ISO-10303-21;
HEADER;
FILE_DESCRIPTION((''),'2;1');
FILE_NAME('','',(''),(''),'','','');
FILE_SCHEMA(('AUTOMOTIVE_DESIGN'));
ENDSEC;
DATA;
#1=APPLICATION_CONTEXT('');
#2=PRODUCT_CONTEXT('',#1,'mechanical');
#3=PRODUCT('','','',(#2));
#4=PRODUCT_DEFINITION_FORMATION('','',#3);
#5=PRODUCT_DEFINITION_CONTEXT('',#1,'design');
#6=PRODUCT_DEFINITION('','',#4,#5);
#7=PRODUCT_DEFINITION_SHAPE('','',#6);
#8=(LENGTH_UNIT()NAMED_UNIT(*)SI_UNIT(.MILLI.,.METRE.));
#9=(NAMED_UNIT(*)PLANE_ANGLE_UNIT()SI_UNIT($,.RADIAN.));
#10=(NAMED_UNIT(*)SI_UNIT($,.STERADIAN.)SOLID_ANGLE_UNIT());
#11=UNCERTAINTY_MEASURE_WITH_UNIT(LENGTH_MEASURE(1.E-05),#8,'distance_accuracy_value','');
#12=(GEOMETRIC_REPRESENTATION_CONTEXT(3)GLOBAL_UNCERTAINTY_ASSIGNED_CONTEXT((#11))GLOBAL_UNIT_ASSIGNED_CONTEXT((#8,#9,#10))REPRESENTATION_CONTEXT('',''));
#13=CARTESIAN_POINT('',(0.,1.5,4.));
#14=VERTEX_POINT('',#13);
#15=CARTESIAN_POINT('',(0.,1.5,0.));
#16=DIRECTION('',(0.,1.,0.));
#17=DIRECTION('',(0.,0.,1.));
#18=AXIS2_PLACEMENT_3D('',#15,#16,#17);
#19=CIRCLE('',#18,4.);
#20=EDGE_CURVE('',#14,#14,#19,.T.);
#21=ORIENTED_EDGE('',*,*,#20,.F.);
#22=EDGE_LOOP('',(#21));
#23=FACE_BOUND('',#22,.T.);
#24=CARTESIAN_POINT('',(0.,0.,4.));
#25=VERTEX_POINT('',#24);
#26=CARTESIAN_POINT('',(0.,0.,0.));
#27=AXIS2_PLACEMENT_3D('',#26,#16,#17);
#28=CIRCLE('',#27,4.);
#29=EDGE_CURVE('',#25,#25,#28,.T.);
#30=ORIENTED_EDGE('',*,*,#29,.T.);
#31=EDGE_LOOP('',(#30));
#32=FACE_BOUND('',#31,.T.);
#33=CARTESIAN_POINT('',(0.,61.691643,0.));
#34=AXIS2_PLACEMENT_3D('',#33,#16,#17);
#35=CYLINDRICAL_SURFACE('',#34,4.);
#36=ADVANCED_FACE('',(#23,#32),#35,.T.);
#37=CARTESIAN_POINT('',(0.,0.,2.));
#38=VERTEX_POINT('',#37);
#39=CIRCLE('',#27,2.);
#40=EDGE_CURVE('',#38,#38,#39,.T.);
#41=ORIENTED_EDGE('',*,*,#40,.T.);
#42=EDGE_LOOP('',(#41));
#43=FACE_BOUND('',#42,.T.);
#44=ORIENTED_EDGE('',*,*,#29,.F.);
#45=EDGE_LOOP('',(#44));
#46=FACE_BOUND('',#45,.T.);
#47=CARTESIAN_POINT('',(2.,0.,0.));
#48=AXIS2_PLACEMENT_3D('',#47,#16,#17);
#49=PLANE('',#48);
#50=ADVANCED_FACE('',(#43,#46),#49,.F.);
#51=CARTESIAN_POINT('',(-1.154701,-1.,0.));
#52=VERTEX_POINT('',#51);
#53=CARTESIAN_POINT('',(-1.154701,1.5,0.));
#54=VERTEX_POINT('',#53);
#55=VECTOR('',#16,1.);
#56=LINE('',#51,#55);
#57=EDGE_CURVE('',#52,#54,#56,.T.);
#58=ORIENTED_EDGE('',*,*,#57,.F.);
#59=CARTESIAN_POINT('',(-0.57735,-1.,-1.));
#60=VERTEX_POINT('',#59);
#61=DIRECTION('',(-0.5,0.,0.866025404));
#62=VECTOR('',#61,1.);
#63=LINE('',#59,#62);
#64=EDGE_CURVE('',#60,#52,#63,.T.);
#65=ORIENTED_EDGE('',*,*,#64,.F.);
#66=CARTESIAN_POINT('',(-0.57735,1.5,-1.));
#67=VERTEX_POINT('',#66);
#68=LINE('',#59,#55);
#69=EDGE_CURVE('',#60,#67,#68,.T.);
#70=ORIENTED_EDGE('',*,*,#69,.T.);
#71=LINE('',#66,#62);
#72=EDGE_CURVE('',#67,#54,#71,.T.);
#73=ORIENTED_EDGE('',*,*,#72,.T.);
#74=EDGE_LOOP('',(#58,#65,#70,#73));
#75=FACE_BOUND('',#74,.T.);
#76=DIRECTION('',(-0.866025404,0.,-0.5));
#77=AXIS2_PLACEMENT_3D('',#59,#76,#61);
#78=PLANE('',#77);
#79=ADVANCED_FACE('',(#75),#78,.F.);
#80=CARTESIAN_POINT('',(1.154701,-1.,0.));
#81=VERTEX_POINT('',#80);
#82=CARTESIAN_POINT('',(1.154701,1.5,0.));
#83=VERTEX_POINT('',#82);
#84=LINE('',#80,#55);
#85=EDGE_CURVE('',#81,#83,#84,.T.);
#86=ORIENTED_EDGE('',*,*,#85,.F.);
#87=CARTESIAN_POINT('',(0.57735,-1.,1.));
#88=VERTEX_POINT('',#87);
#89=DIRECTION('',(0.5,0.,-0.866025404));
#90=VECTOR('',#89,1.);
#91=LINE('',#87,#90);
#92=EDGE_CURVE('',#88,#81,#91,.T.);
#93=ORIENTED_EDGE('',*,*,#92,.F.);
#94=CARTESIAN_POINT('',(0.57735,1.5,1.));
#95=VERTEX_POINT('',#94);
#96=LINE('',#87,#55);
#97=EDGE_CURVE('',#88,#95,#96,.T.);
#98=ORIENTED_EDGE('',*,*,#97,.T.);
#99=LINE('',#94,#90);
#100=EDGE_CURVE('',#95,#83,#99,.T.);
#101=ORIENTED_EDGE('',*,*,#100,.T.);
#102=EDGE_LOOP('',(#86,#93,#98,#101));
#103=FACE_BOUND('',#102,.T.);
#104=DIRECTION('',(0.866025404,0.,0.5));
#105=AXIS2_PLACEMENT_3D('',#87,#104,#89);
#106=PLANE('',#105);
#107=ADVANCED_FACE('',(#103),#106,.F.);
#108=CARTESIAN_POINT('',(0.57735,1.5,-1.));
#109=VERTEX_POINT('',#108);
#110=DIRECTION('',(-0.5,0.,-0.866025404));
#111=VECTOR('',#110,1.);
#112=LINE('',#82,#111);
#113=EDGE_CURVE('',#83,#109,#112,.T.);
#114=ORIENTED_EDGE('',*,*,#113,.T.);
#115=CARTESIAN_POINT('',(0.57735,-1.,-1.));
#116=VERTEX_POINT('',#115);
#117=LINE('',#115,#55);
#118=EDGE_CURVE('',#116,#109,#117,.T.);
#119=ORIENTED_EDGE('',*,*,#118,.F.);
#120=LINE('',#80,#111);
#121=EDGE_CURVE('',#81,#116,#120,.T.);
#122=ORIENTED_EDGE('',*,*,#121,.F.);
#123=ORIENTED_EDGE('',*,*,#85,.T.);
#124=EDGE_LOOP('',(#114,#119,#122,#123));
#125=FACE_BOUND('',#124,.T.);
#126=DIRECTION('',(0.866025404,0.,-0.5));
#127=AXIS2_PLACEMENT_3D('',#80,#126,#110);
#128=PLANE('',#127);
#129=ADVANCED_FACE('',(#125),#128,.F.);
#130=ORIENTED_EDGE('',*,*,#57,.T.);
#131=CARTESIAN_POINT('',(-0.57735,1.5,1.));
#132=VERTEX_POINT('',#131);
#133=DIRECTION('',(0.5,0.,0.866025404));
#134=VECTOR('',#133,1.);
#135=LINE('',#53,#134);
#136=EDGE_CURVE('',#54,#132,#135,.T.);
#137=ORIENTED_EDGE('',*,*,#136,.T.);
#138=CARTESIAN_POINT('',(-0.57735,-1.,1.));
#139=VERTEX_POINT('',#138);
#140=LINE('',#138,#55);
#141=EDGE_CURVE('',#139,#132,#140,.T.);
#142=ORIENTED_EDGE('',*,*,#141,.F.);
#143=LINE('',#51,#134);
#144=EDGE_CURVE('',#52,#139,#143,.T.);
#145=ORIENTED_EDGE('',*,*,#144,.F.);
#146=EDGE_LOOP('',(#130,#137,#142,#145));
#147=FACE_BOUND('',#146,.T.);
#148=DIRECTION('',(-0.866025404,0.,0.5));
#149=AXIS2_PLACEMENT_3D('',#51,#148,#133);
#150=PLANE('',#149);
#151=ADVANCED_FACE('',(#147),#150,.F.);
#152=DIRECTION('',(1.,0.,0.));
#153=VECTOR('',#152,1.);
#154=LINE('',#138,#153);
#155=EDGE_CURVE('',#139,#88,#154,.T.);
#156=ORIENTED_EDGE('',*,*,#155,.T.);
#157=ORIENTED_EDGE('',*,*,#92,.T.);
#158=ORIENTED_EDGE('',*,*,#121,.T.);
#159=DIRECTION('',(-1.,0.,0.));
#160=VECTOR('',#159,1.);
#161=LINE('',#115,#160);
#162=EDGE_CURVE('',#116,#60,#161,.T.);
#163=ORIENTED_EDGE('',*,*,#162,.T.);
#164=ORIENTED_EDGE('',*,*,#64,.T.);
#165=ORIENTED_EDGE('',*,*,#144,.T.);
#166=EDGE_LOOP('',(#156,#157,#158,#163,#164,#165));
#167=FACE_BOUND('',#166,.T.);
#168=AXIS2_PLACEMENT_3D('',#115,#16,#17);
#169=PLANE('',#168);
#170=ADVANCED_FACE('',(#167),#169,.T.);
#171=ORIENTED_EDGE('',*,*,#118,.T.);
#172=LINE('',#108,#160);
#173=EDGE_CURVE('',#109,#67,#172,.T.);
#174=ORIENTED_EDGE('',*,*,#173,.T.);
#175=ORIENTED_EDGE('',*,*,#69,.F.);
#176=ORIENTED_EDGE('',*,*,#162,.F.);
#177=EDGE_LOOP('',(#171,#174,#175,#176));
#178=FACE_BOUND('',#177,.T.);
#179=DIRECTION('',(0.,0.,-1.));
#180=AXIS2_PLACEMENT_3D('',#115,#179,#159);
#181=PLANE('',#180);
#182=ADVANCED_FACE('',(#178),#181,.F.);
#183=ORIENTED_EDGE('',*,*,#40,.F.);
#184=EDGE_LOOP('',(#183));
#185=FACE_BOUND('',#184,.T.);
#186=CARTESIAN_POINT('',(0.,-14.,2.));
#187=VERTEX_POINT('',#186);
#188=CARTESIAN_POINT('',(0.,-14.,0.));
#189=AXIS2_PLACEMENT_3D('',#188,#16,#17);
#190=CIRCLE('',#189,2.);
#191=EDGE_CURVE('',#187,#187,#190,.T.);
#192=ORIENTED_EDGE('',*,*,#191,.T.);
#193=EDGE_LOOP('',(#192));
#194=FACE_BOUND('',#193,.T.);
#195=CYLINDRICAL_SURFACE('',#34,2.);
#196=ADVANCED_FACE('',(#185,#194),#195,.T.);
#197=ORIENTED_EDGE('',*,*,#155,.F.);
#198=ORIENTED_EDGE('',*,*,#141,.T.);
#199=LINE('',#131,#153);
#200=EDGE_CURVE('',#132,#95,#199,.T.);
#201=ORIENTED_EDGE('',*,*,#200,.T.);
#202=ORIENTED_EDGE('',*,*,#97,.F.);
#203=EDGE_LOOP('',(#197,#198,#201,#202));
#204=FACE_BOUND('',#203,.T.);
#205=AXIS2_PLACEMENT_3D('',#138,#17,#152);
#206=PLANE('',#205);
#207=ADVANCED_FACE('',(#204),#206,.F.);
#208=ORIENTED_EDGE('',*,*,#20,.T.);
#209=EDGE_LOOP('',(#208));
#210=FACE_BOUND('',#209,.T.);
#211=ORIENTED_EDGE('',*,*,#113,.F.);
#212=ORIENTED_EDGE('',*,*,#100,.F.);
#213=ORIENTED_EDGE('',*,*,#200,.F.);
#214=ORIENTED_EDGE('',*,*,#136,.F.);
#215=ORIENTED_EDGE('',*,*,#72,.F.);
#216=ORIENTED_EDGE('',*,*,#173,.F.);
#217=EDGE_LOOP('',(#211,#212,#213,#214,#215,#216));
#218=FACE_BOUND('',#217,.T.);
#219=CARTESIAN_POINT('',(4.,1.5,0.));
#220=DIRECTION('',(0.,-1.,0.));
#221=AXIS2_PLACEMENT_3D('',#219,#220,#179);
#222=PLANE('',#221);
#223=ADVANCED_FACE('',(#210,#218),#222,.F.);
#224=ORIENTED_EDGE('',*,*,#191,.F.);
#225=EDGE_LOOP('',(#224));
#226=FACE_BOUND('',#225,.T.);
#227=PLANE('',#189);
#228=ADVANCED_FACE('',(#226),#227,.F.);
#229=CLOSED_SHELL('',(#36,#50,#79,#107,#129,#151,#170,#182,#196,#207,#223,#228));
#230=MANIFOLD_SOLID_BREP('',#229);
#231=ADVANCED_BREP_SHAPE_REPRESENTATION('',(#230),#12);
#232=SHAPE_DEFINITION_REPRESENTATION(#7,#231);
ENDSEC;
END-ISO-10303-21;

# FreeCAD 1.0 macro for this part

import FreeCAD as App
import Part
import Sketcher
from FreeCAD import Vector
Q = App.Units.Quantity

doc = App.newDocument("Part")
params = doc.addObject("Spreadsheet::Sheet", "Params")
for row, (alias, value) in enumerate([
    ("sketch1_width", "2 mm"),
    ("sketch1_height", "14 mm"),
    ("sketch1_height2", "1.5 mm"),
    ("revolution_angle", "360 deg"),
    ("pocket1_length", "2.5 mm"),
], start=1):
    params.set(f"A{row}", alias)
    params.set(f"B{row}", "=" + value)
    params.setAlias(f"B{row}", alias)

body = doc.addObject("PartDesign::Body", "Body")

# Sketch on XY plane
sketch1 = doc.addObject("Sketcher::SketchObject", "Sketch")
body.addObject(sketch1)
sketch1.AttachmentSupport = (doc.XY_Plane, [""])
sketch1.MapMode = "FlatFace"
sketch1.addGeometry([
    Part.LineSegment(Vector(0, -14, 0), Vector(2, -14, 0)),  # 0
    Part.LineSegment(Vector(2, -14, 0), Vector(2, 0, 0)),  # 1
    Part.LineSegment(Vector(2, 0, 0), Vector(4, 0, 0)),  # 2
    Part.LineSegment(Vector(4, 0, 0), Vector(4, 1.5, 0)),  # 3
    Part.LineSegment(Vector(4, 1.5, 0), Vector(0, 1.5, 0)),  # 4
    Part.LineSegment(Vector(0, 1.5, 0), Vector(0, -14, 0)),  # 5
], False)
sketch1.addConstraint([
    Sketcher.Constraint("Coincident", 0, 2, 1, 1),
    Sketcher.Constraint("Coincident", 1, 2, 2, 1),
    Sketcher.Constraint("Coincident", 2, 2, 3, 1),
    Sketcher.Constraint("Coincident", 3, 2, 4, 1),
    Sketcher.Constraint("Coincident", 4, 2, 5, 1),
    Sketcher.Constraint("Coincident", 5, 2, 0, 1),
    Sketcher.Constraint("Horizontal", 0),
    Sketcher.Constraint("Vertical", 1),
    Sketcher.Constraint("Horizontal", 2),
    Sketcher.Constraint("Vertical", 3),
    Sketcher.Constraint("Horizontal", 4),
    Sketcher.Constraint("Vertical", 5),
    Sketcher.Constraint("PointOnObject", 1, 2, -1),
    Sketcher.Constraint("PointOnObject", 4, 2, -2),
    Sketcher.Constraint("Equal", 0, 2),
    Sketcher.Constraint("DistanceX", 0, 1, 0, 2, 2.0),
    Sketcher.Constraint("DistanceY", 1, 1, 1, 2, 14.0),
    Sketcher.Constraint("DistanceY", 3, 1, 3, 2, 1.5),
])
sketch1.setExpression("Constraints[15]", "Params.sketch1_width")
sketch1.setExpression("Constraints[16]", "Params.sketch1_height")
sketch1.setExpression("Constraints[17]", "Params.sketch1_height2")
revolution = doc.addObject("PartDesign::Revolution", "Revolution")
body.addObject(revolution)
revolution.Profile = sketch1
revolution.ReferenceAxis = (sketch1, ["V_Axis"])
revolution.setExpression("Angle", "Params.revolution_angle")

# Sketch on XZ plane
sketch2 = doc.addObject("Sketcher::SketchObject", "Sketch001")
body.addObject(sketch2)
sketch2.AttachmentSupport = (doc.XZ_Plane, [""])
sketch2.MapMode = "FlatFace"
sketch2.AttachmentOffset = App.Placement(Vector(0, 0, -1.5), App.Rotation())
sketch2.addGeometry([
    Part.LineSegment(Vector(0.57735, -1, 0), Vector(-0.57735, -1, 0)),  # 0
    Part.LineSegment(Vector(-0.57735, -1, 0), Vector(-1.154701, 0, 0)),  # 1
    Part.LineSegment(Vector(-1.154701, 0, 0), Vector(-0.57735, 1, 0)),  # 2
    Part.LineSegment(Vector(-0.57735, 1, 0), Vector(0.57735, 1, 0)),  # 3
    Part.LineSegment(Vector(0.57735, 1, 0), Vector(1.154701, 0, 0)),  # 4
    Part.LineSegment(Vector(1.154701, 0, 0), Vector(0.57735, -1, 0)),  # 5
], False)
sketch2.addConstraint([
    Sketcher.Constraint("Coincident", 0, 2, 1, 1),
    Sketcher.Constraint("Coincident", 1, 2, 2, 1),
    Sketcher.Constraint("Coincident", 2, 2, 3, 1),
    Sketcher.Constraint("Coincident", 3, 2, 4, 1),
    Sketcher.Constraint("Coincident", 4, 2, 5, 1),
    Sketcher.Constraint("Coincident", 5, 2, 0, 1),
    Sketcher.Constraint("Horizontal", 0),
    Sketcher.Constraint("Horizontal", 3),
    Sketcher.Constraint("Symmetric", 0, 2, 3, 2, -1, 1),
    Sketcher.Constraint("Symmetric", 1, 2, 4, 2, -1, 1),
    Sketcher.Constraint("PointOnObject", 1, 2, -1),
    Sketcher.Constraint("Parallel", 2, 5),
    Sketcher.Constraint("Vertical", 0, 2, 2, 2),
    Sketcher.Constraint("Angle", 1, Q("120 deg")),
    Sketcher.Constraint("DistanceY", 0, 2, -1, 1, 1.0),
    Sketcher.Constraint("DistanceX", 0, 2, 0, 1, 1.154701),
])
pocket1 = doc.addObject("PartDesign::Pocket", "Pocket")
body.addObject(pocket1)
pocket1.Profile = sketch2
pocket1.setExpression("Length", "Params.pocket1_length")
pocket1.Reversed = True

doc.recompute()
